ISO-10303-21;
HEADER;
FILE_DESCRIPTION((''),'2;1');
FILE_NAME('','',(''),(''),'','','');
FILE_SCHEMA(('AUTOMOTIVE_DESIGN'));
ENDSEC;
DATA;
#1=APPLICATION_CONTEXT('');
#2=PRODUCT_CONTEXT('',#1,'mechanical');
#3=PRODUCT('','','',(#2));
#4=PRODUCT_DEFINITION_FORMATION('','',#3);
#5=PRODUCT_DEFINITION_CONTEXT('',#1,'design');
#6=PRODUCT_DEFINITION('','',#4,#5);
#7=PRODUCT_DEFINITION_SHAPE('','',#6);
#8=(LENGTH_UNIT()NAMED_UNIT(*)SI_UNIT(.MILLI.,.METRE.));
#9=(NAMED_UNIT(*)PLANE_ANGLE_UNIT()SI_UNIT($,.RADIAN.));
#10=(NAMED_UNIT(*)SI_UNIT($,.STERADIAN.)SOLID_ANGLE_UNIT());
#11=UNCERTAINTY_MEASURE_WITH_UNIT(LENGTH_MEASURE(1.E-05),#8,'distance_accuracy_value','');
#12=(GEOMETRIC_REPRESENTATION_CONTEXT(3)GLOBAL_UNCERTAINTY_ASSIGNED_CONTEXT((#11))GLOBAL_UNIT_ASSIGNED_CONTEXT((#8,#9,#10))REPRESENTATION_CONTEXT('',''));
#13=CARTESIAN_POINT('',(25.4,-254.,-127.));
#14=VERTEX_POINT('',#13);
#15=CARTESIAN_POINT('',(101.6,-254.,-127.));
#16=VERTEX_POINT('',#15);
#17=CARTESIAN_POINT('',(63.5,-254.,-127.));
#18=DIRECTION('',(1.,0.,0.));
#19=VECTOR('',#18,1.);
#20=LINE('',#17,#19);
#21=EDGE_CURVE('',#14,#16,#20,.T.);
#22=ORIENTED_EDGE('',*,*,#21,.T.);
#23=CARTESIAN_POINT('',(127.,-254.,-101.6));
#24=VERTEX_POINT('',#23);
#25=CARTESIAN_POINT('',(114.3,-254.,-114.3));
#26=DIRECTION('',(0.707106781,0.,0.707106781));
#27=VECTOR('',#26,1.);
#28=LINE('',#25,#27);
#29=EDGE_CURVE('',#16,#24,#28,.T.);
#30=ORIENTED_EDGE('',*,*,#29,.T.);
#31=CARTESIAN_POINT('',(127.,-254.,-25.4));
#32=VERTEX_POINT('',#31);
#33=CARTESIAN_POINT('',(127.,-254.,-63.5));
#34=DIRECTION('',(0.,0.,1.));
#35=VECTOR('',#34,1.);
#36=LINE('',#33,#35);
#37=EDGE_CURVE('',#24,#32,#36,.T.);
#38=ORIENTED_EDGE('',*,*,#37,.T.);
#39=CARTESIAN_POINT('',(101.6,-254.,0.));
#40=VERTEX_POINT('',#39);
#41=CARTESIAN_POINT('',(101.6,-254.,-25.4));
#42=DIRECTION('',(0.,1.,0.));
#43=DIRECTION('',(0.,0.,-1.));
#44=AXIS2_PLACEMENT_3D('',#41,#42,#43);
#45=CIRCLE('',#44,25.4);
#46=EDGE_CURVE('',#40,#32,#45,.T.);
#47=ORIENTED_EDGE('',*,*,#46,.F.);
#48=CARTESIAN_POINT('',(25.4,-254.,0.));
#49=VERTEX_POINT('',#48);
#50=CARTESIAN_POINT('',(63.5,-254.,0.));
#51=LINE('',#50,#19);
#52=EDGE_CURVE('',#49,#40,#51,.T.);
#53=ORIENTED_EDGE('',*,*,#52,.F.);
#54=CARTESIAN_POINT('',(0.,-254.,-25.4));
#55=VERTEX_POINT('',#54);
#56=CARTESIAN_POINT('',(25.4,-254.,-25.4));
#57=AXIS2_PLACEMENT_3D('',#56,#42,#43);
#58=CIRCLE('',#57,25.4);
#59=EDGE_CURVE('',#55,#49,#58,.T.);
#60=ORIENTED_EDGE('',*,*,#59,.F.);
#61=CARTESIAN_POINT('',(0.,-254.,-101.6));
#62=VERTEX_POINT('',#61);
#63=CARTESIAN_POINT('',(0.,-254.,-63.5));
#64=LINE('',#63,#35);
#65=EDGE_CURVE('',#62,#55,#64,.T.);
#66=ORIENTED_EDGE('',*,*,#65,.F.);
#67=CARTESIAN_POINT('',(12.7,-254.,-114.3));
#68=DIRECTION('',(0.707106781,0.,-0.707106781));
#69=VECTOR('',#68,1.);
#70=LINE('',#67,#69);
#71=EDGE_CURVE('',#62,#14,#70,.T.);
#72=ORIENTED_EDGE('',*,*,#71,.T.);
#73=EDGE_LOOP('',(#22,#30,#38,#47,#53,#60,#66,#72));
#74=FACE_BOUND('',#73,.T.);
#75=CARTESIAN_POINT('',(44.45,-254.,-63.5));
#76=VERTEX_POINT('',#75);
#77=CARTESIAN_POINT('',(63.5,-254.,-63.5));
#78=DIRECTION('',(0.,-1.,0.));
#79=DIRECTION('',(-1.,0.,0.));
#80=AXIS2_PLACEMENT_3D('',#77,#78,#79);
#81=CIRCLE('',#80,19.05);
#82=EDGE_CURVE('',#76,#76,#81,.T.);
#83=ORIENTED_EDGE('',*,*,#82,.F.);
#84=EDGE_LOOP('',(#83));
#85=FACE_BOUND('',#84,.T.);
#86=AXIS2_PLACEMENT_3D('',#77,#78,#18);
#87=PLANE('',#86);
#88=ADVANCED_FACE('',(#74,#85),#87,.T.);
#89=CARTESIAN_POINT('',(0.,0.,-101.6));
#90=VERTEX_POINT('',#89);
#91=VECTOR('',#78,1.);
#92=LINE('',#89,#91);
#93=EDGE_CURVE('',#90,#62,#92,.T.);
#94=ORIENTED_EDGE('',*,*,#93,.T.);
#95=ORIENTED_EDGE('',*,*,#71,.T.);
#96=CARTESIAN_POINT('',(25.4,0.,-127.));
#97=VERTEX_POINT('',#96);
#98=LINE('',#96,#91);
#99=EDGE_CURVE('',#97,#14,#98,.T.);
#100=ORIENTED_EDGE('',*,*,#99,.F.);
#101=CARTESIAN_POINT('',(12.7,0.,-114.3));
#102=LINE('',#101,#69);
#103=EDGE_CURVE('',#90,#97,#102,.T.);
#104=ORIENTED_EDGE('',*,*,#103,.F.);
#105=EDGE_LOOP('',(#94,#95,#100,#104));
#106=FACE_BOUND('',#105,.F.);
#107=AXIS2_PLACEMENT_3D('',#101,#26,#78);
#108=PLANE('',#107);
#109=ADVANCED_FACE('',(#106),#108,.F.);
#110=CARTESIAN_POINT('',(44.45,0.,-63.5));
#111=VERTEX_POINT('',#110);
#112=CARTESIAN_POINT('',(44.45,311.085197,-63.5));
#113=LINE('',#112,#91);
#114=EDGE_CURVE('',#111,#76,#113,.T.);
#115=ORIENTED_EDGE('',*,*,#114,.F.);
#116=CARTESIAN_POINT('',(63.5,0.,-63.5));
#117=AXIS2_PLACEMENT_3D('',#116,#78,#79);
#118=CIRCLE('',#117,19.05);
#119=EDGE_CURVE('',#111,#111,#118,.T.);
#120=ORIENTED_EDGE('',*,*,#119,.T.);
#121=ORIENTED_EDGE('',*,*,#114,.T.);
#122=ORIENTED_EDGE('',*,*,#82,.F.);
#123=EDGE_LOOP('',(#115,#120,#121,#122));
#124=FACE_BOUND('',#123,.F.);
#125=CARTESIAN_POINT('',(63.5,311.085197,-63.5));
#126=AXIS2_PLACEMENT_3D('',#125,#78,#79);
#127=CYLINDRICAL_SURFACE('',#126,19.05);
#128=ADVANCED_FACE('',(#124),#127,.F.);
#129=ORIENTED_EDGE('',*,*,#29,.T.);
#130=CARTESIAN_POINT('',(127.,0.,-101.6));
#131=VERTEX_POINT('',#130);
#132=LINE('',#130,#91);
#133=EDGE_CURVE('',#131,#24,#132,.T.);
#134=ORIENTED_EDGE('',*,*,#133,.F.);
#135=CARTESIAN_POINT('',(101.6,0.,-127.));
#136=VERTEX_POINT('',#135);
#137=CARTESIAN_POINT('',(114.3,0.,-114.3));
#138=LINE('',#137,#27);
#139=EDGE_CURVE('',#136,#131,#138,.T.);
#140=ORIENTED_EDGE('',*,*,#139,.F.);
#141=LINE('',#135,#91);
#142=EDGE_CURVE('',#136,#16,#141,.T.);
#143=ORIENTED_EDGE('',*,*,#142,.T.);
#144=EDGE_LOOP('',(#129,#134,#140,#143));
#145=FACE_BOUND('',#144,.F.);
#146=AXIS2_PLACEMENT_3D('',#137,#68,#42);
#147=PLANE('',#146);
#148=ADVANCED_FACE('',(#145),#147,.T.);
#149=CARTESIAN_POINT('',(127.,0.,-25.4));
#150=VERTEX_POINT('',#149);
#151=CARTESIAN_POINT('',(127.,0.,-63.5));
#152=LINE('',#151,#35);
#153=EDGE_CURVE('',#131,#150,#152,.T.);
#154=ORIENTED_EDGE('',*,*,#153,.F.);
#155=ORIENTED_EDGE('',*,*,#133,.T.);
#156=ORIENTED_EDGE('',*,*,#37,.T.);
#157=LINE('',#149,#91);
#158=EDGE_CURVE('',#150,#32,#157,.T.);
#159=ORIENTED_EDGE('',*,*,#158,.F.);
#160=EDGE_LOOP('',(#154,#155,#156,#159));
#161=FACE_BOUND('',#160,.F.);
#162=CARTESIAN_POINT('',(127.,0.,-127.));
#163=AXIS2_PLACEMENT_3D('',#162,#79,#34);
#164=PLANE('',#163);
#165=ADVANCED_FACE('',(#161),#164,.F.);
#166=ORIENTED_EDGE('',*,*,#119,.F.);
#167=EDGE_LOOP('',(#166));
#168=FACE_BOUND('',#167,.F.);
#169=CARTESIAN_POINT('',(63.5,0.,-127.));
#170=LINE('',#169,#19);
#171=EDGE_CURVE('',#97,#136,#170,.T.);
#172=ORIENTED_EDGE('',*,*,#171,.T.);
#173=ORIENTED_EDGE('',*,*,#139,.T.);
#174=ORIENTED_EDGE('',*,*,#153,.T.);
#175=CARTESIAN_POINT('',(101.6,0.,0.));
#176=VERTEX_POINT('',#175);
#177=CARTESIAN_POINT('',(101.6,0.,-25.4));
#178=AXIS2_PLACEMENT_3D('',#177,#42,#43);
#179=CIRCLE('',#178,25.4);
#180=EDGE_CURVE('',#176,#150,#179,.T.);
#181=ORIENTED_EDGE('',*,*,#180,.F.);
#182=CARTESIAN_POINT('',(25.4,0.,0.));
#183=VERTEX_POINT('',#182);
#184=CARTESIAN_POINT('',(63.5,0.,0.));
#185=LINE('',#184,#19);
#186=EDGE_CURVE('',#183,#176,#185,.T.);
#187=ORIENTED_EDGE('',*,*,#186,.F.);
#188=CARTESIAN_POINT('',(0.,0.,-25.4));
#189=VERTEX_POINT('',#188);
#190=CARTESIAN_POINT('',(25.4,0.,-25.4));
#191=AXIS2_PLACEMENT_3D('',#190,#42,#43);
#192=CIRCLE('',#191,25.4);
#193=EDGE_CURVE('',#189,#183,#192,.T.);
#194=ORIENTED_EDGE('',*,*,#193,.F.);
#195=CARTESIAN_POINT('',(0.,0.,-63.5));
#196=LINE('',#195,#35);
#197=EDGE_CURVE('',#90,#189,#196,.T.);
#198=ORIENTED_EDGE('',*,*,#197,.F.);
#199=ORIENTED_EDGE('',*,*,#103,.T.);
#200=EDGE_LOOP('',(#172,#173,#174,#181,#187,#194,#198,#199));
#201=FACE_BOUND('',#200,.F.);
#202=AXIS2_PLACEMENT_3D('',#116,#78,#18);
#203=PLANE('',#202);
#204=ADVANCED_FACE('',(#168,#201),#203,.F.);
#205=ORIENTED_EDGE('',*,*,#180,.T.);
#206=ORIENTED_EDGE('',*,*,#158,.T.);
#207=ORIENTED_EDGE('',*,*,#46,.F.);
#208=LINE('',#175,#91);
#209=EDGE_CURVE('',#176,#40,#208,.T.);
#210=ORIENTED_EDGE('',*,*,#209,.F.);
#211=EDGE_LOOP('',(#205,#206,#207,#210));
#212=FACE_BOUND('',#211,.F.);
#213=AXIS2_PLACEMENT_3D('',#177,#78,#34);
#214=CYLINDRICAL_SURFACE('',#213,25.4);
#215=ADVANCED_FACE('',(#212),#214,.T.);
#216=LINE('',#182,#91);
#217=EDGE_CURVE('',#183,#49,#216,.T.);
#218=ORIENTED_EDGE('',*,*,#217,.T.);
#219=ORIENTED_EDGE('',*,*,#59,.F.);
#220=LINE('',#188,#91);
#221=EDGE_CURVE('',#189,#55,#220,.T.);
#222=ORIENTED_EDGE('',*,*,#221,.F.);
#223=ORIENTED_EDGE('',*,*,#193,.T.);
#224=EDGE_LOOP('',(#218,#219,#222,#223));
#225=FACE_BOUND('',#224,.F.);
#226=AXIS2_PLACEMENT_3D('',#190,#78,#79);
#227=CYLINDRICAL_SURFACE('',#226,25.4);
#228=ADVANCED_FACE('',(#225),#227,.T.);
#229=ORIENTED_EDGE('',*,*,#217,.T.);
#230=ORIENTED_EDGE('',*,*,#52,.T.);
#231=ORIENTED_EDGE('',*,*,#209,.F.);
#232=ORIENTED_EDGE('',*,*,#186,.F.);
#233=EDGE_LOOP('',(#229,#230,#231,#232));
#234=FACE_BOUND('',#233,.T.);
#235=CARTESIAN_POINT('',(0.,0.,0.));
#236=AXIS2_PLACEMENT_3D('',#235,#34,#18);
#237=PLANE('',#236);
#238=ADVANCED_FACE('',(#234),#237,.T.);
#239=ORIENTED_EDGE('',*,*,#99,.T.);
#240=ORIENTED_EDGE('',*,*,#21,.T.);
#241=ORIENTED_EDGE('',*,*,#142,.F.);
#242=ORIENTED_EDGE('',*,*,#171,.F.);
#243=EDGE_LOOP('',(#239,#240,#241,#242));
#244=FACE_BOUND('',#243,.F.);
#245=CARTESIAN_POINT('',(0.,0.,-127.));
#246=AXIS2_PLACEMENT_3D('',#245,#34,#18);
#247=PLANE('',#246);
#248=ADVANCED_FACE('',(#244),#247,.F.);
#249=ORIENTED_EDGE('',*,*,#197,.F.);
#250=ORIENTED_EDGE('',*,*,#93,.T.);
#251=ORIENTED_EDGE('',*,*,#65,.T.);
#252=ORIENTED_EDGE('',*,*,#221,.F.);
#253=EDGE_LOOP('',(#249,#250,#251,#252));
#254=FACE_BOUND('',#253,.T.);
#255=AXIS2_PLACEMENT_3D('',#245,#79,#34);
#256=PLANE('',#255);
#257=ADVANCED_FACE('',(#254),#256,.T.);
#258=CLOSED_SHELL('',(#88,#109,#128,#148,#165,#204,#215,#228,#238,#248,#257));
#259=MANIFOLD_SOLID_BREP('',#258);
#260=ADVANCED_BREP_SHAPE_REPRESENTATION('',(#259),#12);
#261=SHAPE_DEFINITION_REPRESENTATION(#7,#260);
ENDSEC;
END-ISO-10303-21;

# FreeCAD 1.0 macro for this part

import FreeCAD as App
import Part
import Sketcher
from FreeCAD import Vector
Q = App.Units.Quantity


def edges_at(feature, points):
    """Names of the edges that pass closest to the given points."""
    edges = feature.Shape.Edges
    near = lambda p: min(range(len(edges)), key=lambda i: edges[i].distToShape(Part.Vertex(*p))[0])
    return sorted({f"Edge{near(p) + 1}" for p in points})

doc = App.newDocument("Part")
body = doc.addObject("PartDesign::Body", "Body")

sketch1 = body.newObject("Sketcher::SketchObject", "Sketch")
sketch1.AttachmentSupport = (doc.getObject("XZ_Plane"), [""])
sketch1.MapMode = "FlatFace"
sketch1.addGeometry(Part.LineSegment(Vector(0, 0, 0), Vector(0, -127, 0)), False)
sketch1.addGeometry(Part.LineSegment(Vector(0, -127, 0), Vector(127, -127, 0)), False)
sketch1.addGeometry(Part.LineSegment(Vector(127, -127, 0), Vector(127, 0, 0)), False)
sketch1.addGeometry(Part.LineSegment(Vector(127, 0, 0), Vector(0, 0, 0)), False)
sketch1.addConstraint(Sketcher.Constraint("Coincident", 0, 2, 1, 1))
sketch1.addConstraint(Sketcher.Constraint("Coincident", 1, 2, 2, 1))
sketch1.addConstraint(Sketcher.Constraint("Coincident", 2, 2, 3, 1))
sketch1.addConstraint(Sketcher.Constraint("Coincident", 3, 2, 0, 1))
sketch1.addConstraint(Sketcher.Constraint("Vertical", 0))
sketch1.addConstraint(Sketcher.Constraint("Horizontal", 1))
sketch1.addConstraint(Sketcher.Constraint("Vertical", 2))
sketch1.addConstraint(Sketcher.Constraint("Horizontal", 3))
sketch1.addConstraint(Sketcher.Constraint("Coincident", 3, 2, -1, 1))
sketch1.addConstraint(Sketcher.Constraint("Equal", 3, 0))
sketch1.addConstraint(Sketcher.Constraint("DistanceX", 1, 1, 1, 2, Q("5 in")))
pad1 = body.newObject("PartDesign::Pad", "Pad")
pad1.Profile = sketch1
pad1.Length = Q("10 in")

sketch2 = body.newObject("Sketcher::SketchObject", "Sketch001")
sketch2.AttachmentSupport = (doc.getObject("XZ_Plane"), [""])
sketch2.MapMode = "FlatFace"
sketch2.addGeometry(Part.Circle(Vector(64, -64, 0), Vector(0, 0, 1), 19), False)
sketch2.addConstraint(Sketcher.Constraint("Diameter", 0, Q("1.5 in")))
sketch2.addConstraint(Sketcher.Constraint("DistanceX", -1, 1, 0, 3, Q("2.5 in")))
sketch2.addConstraint(Sketcher.Constraint("DistanceY", 0, 3, -1, 1, Q("2.5 in")))
doc.recompute()
hole = body.newObject("PartDesign::Hole", "Hole")
hole.Profile = sketch2
hole.ThreadType = "None"
hole.Diameter = Q("1.5 in")
hole.DepthType = "ThroughAll"
hole.Reversed = True
doc.recompute()

fillet = body.newObject("PartDesign::Fillet", "Fillet")
fillet.Base = (hole, edges_at(hole, [(127, -127, 0), (0, -127, 0)]))
fillet.Radius = Q("1 in")
doc.recompute()

chamfer = body.newObject("PartDesign::Chamfer", "Chamfer")
chamfer.Base = (fillet, edges_at(fillet, [(127, -127, -127), (0, -127, -127)]))
chamfer.Size = Q("1 in")

doc.recompute()
